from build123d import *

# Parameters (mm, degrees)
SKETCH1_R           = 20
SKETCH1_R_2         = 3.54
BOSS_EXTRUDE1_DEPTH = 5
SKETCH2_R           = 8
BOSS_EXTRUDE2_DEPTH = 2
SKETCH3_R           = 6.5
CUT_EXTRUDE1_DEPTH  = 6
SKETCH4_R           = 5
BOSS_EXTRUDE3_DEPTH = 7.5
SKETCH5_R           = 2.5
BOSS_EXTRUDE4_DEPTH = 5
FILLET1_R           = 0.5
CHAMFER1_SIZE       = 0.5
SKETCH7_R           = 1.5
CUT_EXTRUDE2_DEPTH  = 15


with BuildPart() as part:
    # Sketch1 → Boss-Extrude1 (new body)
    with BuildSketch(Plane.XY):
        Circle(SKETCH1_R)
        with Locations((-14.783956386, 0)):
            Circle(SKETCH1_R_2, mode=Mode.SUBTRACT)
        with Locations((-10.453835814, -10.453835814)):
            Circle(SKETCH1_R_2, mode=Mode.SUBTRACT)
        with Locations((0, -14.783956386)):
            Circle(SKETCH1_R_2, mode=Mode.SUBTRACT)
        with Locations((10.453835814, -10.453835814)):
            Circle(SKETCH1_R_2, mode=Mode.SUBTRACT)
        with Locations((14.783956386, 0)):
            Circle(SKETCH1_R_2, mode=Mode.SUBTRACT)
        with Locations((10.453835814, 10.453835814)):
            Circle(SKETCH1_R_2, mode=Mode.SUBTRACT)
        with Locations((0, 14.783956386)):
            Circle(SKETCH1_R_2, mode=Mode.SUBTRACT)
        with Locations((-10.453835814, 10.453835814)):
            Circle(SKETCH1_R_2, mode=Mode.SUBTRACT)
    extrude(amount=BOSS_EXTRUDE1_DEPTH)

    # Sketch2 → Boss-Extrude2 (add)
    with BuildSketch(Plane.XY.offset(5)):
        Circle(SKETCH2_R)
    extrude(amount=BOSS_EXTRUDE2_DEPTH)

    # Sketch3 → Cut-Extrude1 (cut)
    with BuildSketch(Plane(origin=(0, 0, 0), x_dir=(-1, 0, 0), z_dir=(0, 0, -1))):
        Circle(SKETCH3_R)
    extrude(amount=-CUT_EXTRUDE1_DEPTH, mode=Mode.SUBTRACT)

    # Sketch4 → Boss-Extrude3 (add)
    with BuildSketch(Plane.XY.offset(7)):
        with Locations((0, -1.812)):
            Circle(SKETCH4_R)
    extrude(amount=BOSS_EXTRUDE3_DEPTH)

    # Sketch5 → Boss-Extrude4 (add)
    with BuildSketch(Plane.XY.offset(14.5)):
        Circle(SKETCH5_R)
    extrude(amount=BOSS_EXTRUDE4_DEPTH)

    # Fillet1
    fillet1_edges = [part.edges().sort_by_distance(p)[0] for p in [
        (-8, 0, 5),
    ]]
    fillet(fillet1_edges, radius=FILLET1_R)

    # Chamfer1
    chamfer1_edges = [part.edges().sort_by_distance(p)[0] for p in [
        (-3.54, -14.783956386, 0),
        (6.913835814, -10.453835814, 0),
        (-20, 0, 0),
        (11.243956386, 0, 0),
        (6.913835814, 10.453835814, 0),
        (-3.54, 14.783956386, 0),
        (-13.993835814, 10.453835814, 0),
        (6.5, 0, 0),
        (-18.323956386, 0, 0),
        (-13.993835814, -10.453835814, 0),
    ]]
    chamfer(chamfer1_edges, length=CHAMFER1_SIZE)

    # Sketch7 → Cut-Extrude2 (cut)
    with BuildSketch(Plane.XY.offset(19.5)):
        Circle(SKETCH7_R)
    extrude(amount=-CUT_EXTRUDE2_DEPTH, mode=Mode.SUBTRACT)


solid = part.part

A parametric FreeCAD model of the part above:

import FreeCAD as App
import Part
import Sketcher

V = App.Vector


def edges_at(feature, points):
    """Names of the edges that pass closest to the given points."""
    edges = feature.Shape.Edges
    near = lambda p: min(range(len(edges)), key=lambda i: edges[i].distToShape(Part.Vertex(*p))[0])
    return sorted({f"Edge{near(p) + 1}" for p in points})

doc = App.newDocument("Part")
body = doc.addObject("PartDesign::Body", "Body")

sketch1 = doc.addObject("Sketcher::SketchObject", "Sketch")
body.addObject(sketch1)
sketch1.AttachmentSupport = (doc.XY_Plane, [""])
sketch1.MapMode = "FlatFace"
sketch1.addGeometry(Part.Circle(V(0, 0, 0), V(0, 0, 1), 20), False)
sketch1.addGeometry(Part.Circle(V(-10.5, -10.5, 0), V(0, 0, 1), 3.5), False)
sketch1.addGeometry(Part.Circle(V(0, -14.8, 0), V(0, 0, 1), 3.5), False)
sketch1.addGeometry(Part.Circle(V(10.5, -10.5, 0), V(0, 0, 1), 3.5), False)
sketch1.addGeometry(Part.Circle(V(-14.8, 0, 0), V(0, 0, 1), 3.5), False)
sketch1.addGeometry(Part.Circle(V(-10.5, 10.5, 0), V(0, 0, 1), 3.5), False)
sketch1.addGeometry(Part.Circle(V(14.8, 0, 0), V(0, 0, 1), 3.5), False)
sketch1.addGeometry(Part.Circle(V(0, 14.8, 0), V(0, 0, 1), 3.5), False)
sketch1.addGeometry(Part.Circle(V(10.5, 10.5, 0), V(0, 0, 1), 3.5), False)
sketch1.addConstraint(Sketcher.Constraint("Coincident", 0, 3, -1, 1))
sketch1.addConstraint(Sketcher.Constraint("Equal", 1, 2))
sketch1.addConstraint(Sketcher.Constraint("Equal", 2, 3))
sketch1.addConstraint(Sketcher.Constraint("Equal", 3, 4))
sketch1.addConstraint(Sketcher.Constraint("Equal", 4, 5))
sketch1.addConstraint(Sketcher.Constraint("Equal", 5, 6))
sketch1.addConstraint(Sketcher.Constraint("Equal", 6, 7))
sketch1.addConstraint(Sketcher.Constraint("Equal", 7, 8))
sketch1.addConstraint(Sketcher.Constraint("Symmetric", 3, 3, 5, 3, -1, 1))
sketch1.addConstraint(Sketcher.Constraint("Symmetric", 4, 3, 6, 3, -1, 1))
sketch1.addConstraint(Sketcher.Constraint("Symmetric", 2, 3, 7, 3, -1, 1))
sketch1.addConstraint(Sketcher.Constraint("Symmetric", 1, 3, 8, 3, -1, 1))
sketch1.addConstraint(Sketcher.Constraint("Symmetric", 1, 3, 3, 3, -2))
sketch1.addConstraint(Sketcher.Constraint("PointOnObject", 2, 3, -2))
sketch1.addConstraint(Sketcher.Constraint("PointOnObject", 4, 3, -1))
sketch1.addConstraint(Sketcher.Constraint("Diameter", 0, 40.0))
sketch1.addConstraint(Sketcher.Constraint("Diameter", 1, 7.08))
sketch1.addConstraint(Sketcher.Constraint("DistanceY", 2, 3, 1, 3, 4.330121))
sketch1.addConstraint(Sketcher.Constraint("DistanceX", 1, 3, 3, 3, 20.907672))
sketch1.addConstraint(Sketcher.Constraint("DistanceX", 4, 3, 1, 3, 4.330121))
sketch1.addConstraint(Sketcher.Constraint("DistanceY", 1, 3, 5, 3, 20.907672))
pad1 = doc.addObject("PartDesign::Pad", "Pad")
body.addObject(pad1)
pad1.Profile = sketch1
pad1.Length = 5

sketch2 = doc.addObject("Sketcher::SketchObject", "Sketch001")
body.addObject(sketch2)
sketch2.AttachmentSupport = (doc.XY_Plane, [""])
sketch2.MapMode = "FlatFace"
sketch2.AttachmentOffset = App.Placement(V(0, 0, 5), App.Rotation())
sketch2.addGeometry(Part.Circle(V(0, 0, 0), V(0, 0, 1), 8), False)
sketch2.addConstraint(Sketcher.Constraint("Coincident", 0, 3, -1, 1))
sketch2.addConstraint(Sketcher.Constraint("Diameter", 0, 16.0))
pad2 = doc.addObject("PartDesign::Pad", "Pad001")
body.addObject(pad2)
pad2.Profile = sketch2
pad2.Length = 2

sketch3 = doc.addObject("Sketcher::SketchObject", "Sketch002")
body.addObject(sketch3)
sketch3.AttachmentSupport = (doc.XY_Plane, [""])
sketch3.MapMode = "FlatFace"
sketch3.addGeometry(Part.Circle(V(0, 0, 0), V(0, 0, 1), 6), False)
sketch3.addConstraint(Sketcher.Constraint("Coincident", 0, 3, -1, 1))
sketch3.addConstraint(Sketcher.Constraint("Diameter", 0, 13.0))
pocket1 = doc.addObject("PartDesign::Pocket", "Pocket")
body.addObject(pocket1)
pocket1.Profile = sketch3
pocket1.Length = 6
pocket1.Reversed = True

sketch4 = doc.addObject("Sketcher::SketchObject", "Sketch003")
body.addObject(sketch4)
sketch4.AttachmentSupport = (doc.XY_Plane, [""])
sketch4.MapMode = "FlatFace"
sketch4.AttachmentOffset = App.Placement(V(0, 0, 7), App.Rotation())
sketch4.addGeometry(Part.Circle(V(0, -2, 0), V(0, 0, 1), 5), False)
sketch4.addConstraint(Sketcher.Constraint("PointOnObject", 0, 3, -2))
sketch4.addConstraint(Sketcher.Constraint("Diameter", 0, 10.0))
sketch4.addConstraint(Sketcher.Constraint("DistanceY", 0, 3, -1, 1, 1.812))
pad3 = doc.addObject("PartDesign::Pad", "Pad002")
body.addObject(pad3)
pad3.Profile = sketch4
pad3.Length = 7.5

sketch5 = doc.addObject("Sketcher::SketchObject", "Sketch004")
body.addObject(sketch5)
sketch5.AttachmentSupport = (doc.XY_Plane, [""])
sketch5.MapMode = "FlatFace"
sketch5.AttachmentOffset = App.Placement(V(0, 0, 14.5), App.Rotation())
sketch5.addGeometry(Part.Circle(V(0, 0, 0), V(0, 0, 1), 2.5), False)
sketch5.addConstraint(Sketcher.Constraint("Coincident", 0, 3, -1, 1))
sketch5.addConstraint(Sketcher.Constraint("Diameter", 0, 5.0))
pad4 = doc.addObject("PartDesign::Pad", "Pad003")
body.addObject(pad4)
pad4.Profile = sketch5
pad4.Length = 5
doc.recompute()

fillet = doc.addObject("PartDesign::Fillet", "Fillet")
body.addObject(fillet)
fillet.Base = (pad4, edges_at(pad4, [(-8, 0, 5)]))
fillet.Radius = 0.5
doc.recompute()

chamfer = doc.addObject("PartDesign::Chamfer", "Chamfer")
body.addObject(chamfer)
chamfer.Base = (fillet, edges_at(fillet, [
    (-3.54, -14.784, 0),
    (6.914, -10.454, 0),
    (-20, 0, 0),
    (11.244, 0, 0),
    (6.914, 10.454, 0),
    (-3.54, 14.784, 0),
    (-13.994, 10.454, 0),
    (6.5, 0, 0),
    (-18.324, 0, 0),
    (-13.994, -10.454, 0),
]))
chamfer.Size = 0.5

sketch6 = doc.addObject("Sketcher::SketchObject", "Sketch005")
body.addObject(sketch6)
sketch6.AttachmentSupport = (doc.XY_Plane, [""])
sketch6.MapMode = "FlatFace"
sketch6.AttachmentOffset = App.Placement(V(0, 0, 19.5), App.Rotation())
sketch6.addGeometry(Part.Circle(V(0, 0, 0), V(0, 0, 1), 1.5), False)
sketch6.addConstraint(Sketcher.Constraint("Coincident", 0, 3, -1, 1))
sketch6.addConstraint(Sketcher.Constraint("Diameter", 0, 3.0))
pocket2 = doc.addObject("PartDesign::Pocket", "Pocket001")
body.addObject(pocket2)
pocket2.Profile = sketch6
pocket2.Length = 15

doc.recompute()
